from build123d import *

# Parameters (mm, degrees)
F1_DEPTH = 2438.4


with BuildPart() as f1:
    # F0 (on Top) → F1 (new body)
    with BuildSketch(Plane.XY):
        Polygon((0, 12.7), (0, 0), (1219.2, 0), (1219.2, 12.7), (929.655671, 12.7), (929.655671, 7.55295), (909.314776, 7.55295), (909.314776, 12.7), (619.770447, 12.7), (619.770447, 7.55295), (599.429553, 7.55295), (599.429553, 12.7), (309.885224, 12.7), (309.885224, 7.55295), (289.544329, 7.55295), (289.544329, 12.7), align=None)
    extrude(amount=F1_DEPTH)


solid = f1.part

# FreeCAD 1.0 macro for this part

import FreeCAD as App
import Part
import Sketcher
from FreeCAD import Vector
Q = App.Units.Quantity

doc = App.newDocument("Part")
body = doc.addObject("PartDesign::Body", "Body")

# Sketch on XY plane
sketch1 = doc.addObject("Sketcher::SketchObject", "Sketch")
body.addObject(sketch1)
sketch1.AttachmentSupport = (doc.XY_Plane, [""])
sketch1.MapMode = "FlatFace"
sketch1.addGeometry([
    Part.LineSegment(Vector(0, 13, 0), Vector(0, 0, 0)),  # 0
    Part.LineSegment(Vector(0, 0, 0), Vector(1219, 0, 0)),  # 1
    Part.LineSegment(Vector(1219, 0, 0), Vector(1219, 13, 0)),  # 2
    Part.LineSegment(Vector(1219, 13, 0), Vector(930, 13, 0)),  # 3
    Part.LineSegment(Vector(930, 13, 0), Vector(930, 8, 0)),  # 4
    Part.LineSegment(Vector(930, 8, 0), Vector(909, 8, 0)),  # 5
    Part.LineSegment(Vector(909, 8, 0), Vector(909, 13, 0)),  # 6
    Part.LineSegment(Vector(909, 13, 0), Vector(620, 13, 0)),  # 7
    Part.LineSegment(Vector(620, 13, 0), Vector(620, 8, 0)),  # 8
    Part.LineSegment(Vector(620, 8, 0), Vector(599, 8, 0)),  # 9
    Part.LineSegment(Vector(599, 8, 0), Vector(599, 13, 0)),  # 10
    Part.LineSegment(Vector(599, 13, 0), Vector(310, 13, 0)),  # 11
    Part.LineSegment(Vector(310, 13, 0), Vector(310, 8, 0)),  # 12
    Part.LineSegment(Vector(310, 8, 0), Vector(290, 8, 0)),  # 13
    Part.LineSegment(Vector(290, 8, 0), Vector(290, 13, 0)),  # 14
    Part.LineSegment(Vector(290, 13, 0), Vector(0, 13, 0)),  # 15
], False)
sketch1.addConstraint([
    Sketcher.Constraint("Coincident", 0, 2, 1, 1),
    Sketcher.Constraint("Coincident", 1, 2, 2, 1),
    Sketcher.Constraint("Coincident", 2, 2, 3, 1),
    Sketcher.Constraint("Coincident", 3, 2, 4, 1),
    Sketcher.Constraint("Coincident", 4, 2, 5, 1),
    Sketcher.Constraint("Coincident", 5, 2, 6, 1),
    Sketcher.Constraint("Coincident", 6, 2, 7, 1),
    Sketcher.Constraint("Coincident", 7, 2, 8, 1),
    Sketcher.Constraint("Coincident", 8, 2, 9, 1),
    Sketcher.Constraint("Coincident", 9, 2, 10, 1),
    Sketcher.Constraint("Coincident", 10, 2, 11, 1),
    Sketcher.Constraint("Coincident", 11, 2, 12, 1),
    Sketcher.Constraint("Coincident", 12, 2, 13, 1),
    Sketcher.Constraint("Coincident", 13, 2, 14, 1),
    Sketcher.Constraint("Coincident", 14, 2, 15, 1),
    Sketcher.Constraint("Coincident", 15, 2, 0, 1),
    Sketcher.Constraint("Vertical", 0),
    Sketcher.Constraint("Horizontal", 1),
    Sketcher.Constraint("Vertical", 2),
    Sketcher.Constraint("Horizontal", 3),
    Sketcher.Constraint("Vertical", 4),
    Sketcher.Constraint("Horizontal", 5),
    Sketcher.Constraint("Vertical", 6),
    Sketcher.Constraint("Horizontal", 7),
    Sketcher.Constraint("Vertical", 8),
    Sketcher.Constraint("Horizontal", 9),
    Sketcher.Constraint("Vertical", 10),
    Sketcher.Constraint("Horizontal", 11),
    Sketcher.Constraint("Vertical", 12),
    Sketcher.Constraint("Horizontal", 13),
    Sketcher.Constraint("Vertical", 14),
    Sketcher.Constraint("Horizontal", 15),
    Sketcher.Constraint("Coincident", 0, 2, -1, 1),
    Sketcher.Constraint("Horizontal", 3, 2, 6, 2),
    Sketcher.Constraint("Horizontal", 5, 2, 8, 2),
    Sketcher.Constraint("Horizontal", 7, 2, 10, 2),
    Sketcher.Constraint("Horizontal", 9, 2, 12, 2),
    Sketcher.Constraint("Horizontal", 11, 2, 14, 2),
    Sketcher.Constraint("Equal", 3, 7),
    Sketcher.Constraint("Equal", 5, 9),
    Sketcher.Constraint("Equal", 7, 11),
    Sketcher.Constraint("Equal", 9, 13),
    Sketcher.Constraint("Equal", 11, 15),
    Sketcher.Constraint("DistanceX", 1, 1, 1, 2, Q("48 in")),
    Sketcher.Constraint("DistanceY", 0, 2, 0, 1, Q("0.5 in")),
    Sketcher.Constraint("DistanceX", 3, 2, 3, 1, Q("289.544329 mm")),
    Sketcher.Constraint("DistanceY", 4, 2, 4, 1, Q("5.14705 mm")),
])
pad1 = doc.addObject("PartDesign::Pad", "Pad")
body.addObject(pad1)
pad1.Profile = sketch1
pad1.Length = Q("96 in")

doc.recompute()
